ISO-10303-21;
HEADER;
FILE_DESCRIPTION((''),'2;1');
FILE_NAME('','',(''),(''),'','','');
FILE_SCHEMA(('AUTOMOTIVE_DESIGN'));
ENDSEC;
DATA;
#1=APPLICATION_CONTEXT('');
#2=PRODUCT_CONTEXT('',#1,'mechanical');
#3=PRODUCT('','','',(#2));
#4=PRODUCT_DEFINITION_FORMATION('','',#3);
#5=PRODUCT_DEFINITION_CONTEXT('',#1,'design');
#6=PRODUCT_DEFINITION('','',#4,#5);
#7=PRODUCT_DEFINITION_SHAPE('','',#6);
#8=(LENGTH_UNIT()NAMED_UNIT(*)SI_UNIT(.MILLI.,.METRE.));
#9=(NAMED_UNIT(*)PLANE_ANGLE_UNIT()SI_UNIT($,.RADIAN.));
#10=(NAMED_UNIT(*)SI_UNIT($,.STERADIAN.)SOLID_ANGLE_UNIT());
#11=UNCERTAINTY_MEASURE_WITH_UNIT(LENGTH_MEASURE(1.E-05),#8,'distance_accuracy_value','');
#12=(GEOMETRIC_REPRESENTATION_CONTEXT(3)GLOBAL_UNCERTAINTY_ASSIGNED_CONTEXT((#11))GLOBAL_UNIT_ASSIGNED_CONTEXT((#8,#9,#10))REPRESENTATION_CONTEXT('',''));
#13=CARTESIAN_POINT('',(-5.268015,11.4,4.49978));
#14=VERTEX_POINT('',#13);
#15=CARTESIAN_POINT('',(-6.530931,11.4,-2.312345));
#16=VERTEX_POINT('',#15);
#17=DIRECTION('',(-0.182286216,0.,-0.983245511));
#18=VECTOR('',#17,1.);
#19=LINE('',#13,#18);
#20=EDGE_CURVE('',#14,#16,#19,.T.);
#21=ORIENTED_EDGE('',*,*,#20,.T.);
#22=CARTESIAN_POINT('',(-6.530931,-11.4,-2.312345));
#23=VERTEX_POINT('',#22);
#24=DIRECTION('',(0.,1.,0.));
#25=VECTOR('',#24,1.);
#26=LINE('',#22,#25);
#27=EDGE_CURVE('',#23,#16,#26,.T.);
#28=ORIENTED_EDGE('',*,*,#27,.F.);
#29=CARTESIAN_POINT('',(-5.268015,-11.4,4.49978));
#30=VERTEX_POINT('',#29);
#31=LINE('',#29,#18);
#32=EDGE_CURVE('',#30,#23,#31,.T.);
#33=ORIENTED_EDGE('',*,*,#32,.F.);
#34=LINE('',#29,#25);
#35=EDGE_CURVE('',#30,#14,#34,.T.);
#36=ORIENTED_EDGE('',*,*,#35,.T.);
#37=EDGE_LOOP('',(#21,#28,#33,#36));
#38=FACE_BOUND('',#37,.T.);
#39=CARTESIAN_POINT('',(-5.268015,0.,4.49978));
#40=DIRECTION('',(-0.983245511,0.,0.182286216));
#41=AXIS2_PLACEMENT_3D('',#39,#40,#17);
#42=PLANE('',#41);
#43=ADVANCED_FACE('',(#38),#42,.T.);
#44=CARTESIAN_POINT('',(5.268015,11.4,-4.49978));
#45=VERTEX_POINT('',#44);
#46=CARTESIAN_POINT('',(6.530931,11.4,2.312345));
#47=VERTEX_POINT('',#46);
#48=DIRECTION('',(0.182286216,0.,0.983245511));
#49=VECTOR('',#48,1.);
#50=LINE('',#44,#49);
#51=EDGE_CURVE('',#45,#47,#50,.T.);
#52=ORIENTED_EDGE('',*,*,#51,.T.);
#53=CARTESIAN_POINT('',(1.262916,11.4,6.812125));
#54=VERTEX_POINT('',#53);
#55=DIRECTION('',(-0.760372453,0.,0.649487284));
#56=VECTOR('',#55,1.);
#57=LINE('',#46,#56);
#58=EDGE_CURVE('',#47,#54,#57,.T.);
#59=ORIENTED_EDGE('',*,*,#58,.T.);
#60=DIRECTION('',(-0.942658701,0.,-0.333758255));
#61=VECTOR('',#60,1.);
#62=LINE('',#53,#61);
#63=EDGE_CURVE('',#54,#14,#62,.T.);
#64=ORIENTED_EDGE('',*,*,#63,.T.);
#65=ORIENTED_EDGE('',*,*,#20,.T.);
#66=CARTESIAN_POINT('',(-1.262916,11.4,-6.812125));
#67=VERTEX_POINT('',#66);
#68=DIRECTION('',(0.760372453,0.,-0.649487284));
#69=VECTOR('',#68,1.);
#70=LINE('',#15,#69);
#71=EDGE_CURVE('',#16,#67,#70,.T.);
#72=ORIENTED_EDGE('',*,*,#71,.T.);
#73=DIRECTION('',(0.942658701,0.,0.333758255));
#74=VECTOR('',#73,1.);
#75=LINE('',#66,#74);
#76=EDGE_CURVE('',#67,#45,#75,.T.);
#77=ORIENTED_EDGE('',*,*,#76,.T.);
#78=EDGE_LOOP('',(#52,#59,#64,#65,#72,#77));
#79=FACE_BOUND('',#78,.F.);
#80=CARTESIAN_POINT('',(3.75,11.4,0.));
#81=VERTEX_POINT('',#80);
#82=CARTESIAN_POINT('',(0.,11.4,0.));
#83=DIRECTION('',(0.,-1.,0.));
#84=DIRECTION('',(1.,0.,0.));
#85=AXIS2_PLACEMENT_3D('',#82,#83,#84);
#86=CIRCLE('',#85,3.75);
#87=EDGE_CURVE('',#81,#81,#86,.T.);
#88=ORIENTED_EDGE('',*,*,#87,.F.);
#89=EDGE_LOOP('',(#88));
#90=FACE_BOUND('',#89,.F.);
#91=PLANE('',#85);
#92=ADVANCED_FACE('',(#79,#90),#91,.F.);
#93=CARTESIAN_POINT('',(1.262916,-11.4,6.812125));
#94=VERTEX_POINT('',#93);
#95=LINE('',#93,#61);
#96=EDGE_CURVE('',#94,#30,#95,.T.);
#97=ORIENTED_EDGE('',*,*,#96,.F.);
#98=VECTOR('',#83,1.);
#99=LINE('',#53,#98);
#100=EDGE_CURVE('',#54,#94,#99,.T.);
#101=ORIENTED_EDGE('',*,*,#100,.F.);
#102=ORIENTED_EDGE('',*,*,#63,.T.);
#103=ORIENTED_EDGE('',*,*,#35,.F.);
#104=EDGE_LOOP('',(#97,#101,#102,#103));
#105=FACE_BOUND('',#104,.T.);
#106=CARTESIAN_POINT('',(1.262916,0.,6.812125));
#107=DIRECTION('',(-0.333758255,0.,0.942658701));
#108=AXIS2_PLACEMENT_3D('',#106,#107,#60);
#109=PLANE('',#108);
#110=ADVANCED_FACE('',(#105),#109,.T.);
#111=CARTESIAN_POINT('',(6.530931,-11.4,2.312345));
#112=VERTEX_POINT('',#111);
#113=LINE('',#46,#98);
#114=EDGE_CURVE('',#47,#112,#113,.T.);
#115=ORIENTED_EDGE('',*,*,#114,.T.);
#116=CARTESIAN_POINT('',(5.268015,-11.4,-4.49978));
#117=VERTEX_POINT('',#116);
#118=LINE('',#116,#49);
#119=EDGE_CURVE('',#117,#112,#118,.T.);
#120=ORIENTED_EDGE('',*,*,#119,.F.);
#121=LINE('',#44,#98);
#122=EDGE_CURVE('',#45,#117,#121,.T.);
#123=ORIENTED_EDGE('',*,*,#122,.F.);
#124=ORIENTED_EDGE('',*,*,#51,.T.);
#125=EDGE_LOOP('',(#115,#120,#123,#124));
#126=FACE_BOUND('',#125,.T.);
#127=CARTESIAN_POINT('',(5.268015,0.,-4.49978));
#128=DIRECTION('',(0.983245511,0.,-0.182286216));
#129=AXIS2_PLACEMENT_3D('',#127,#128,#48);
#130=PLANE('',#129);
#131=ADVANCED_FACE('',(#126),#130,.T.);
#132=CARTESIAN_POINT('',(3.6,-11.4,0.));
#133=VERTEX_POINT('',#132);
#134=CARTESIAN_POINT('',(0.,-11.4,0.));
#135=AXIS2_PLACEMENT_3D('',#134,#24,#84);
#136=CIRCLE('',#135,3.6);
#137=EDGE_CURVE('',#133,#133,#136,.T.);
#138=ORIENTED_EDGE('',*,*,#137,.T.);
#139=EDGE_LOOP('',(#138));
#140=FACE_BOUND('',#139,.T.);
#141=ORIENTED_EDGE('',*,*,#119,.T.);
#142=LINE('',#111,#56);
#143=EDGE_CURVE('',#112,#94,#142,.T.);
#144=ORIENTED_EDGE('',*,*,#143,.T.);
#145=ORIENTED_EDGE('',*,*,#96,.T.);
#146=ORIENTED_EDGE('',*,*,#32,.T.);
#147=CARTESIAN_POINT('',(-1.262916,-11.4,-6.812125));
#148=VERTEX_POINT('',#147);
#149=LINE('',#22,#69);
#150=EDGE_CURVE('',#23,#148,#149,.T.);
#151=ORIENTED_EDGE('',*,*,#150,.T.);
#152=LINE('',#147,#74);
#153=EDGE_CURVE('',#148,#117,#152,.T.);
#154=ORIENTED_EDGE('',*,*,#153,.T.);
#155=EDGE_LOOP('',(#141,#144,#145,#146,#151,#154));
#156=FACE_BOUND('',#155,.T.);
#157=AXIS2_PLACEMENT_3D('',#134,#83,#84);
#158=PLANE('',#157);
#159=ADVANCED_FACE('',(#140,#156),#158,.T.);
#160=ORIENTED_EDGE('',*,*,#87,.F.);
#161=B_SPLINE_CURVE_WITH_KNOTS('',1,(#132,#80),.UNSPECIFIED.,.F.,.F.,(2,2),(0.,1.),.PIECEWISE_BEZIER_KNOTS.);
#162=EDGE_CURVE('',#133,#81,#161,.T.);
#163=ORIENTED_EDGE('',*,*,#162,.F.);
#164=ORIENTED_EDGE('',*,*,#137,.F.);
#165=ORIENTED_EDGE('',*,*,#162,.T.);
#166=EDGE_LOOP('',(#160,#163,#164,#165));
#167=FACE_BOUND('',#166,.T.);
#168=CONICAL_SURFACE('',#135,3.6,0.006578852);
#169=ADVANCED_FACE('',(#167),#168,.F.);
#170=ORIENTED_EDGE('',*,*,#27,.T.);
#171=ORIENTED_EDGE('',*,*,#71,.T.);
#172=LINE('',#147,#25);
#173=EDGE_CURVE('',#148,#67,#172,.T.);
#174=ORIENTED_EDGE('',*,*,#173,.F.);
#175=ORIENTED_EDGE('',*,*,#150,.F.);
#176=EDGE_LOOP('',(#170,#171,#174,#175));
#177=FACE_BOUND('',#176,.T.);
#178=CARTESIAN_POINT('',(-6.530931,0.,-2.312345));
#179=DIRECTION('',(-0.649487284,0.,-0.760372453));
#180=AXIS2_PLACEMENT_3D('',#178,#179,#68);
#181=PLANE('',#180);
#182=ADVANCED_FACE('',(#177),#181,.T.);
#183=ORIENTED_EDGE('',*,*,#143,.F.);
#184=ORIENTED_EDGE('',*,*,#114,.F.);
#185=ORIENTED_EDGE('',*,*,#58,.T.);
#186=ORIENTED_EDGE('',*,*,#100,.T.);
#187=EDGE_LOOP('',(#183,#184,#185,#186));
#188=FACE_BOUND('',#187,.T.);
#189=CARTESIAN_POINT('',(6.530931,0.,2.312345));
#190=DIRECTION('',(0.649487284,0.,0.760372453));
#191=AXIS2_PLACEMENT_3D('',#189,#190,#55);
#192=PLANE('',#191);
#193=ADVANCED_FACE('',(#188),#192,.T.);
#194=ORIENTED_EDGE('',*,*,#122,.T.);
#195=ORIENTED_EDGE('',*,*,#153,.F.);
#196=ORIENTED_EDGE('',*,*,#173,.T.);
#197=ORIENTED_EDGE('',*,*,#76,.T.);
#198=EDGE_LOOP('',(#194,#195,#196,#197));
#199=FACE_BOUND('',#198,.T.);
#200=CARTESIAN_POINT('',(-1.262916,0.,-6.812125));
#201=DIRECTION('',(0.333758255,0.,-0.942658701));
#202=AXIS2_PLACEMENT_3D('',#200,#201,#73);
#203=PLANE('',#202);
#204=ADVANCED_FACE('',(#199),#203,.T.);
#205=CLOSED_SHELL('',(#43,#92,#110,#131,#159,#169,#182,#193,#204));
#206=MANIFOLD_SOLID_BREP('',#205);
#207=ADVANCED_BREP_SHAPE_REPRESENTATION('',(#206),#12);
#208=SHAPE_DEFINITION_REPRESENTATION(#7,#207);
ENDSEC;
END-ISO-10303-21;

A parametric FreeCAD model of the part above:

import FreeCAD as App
import Part
import Sketcher
Q = App.Units.Quantity

doc = App.newDocument("Part")
body = doc.addObject("PartDesign::Body", "Body")

# Sketch on XZ plane
sketch1 = body.newObject("Sketcher::SketchObject", "Sketch")
sketch1.AttachmentSupport = (doc.getObject("XZ_Plane"), [""])
sketch1.MapMode = "FlatFace"
sketch1.addGeometry([
    Part.LineSegment(App.Vector(-1, -7, 0), App.Vector(5, -4, 0)),  # 0
    Part.LineSegment(App.Vector(5, -4, 0), App.Vector(7, 2, 0)),  # 1
    Part.LineSegment(App.Vector(7, 2, 0), App.Vector(1, 7, 0)),  # 2
    Part.LineSegment(App.Vector(1, 7, 0), App.Vector(-5, 4, 0)),  # 3
    Part.LineSegment(App.Vector(-5, 4, 0), App.Vector(-7, -2, 0)),  # 4
    Part.LineSegment(App.Vector(-7, -2, 0), App.Vector(-1, -7, 0)),  # 5
], False)
sketch1.addConstraint([
    Sketcher.Constraint("Coincident", 0, 2, 1, 1),
    Sketcher.Constraint("Coincident", 1, 2, 2, 1),
    Sketcher.Constraint("Coincident", 2, 2, 3, 1),
    Sketcher.Constraint("Coincident", 3, 2, 4, 1),
    Sketcher.Constraint("Coincident", 4, 2, 5, 1),
    Sketcher.Constraint("Coincident", 5, 2, 0, 1),
    Sketcher.Constraint("Symmetric", 0, 2, 3, 2, -1, 1),
    Sketcher.Constraint("Symmetric", 1, 2, 4, 2, -1, 1),
    Sketcher.Constraint("Symmetric", 2, 2, 5, 2, -1, 1),
    Sketcher.Constraint("Equal", 0, 1),
    Sketcher.Constraint("Equal", 1, 2),
    Sketcher.Constraint("DistanceX", 2, 2, 0, 2, Q("4.005099 mm")),
    Sketcher.Constraint("DistanceY", 0, 2, -1, 1, Q("4.49978 mm")),
    Sketcher.Constraint("DistanceX", -1, 1, 1, 2, Q("6.530931 mm")),
    Sketcher.Constraint("DistanceY", 1, 2, 2, 2, Q("4.49978 mm")),
])
pad1 = body.newObject("PartDesign::Pad", "Pad")
pad1.Profile = sketch1
pad1.Length = 22.8
pad1.Midplane = True

# Sketch on XZ plane
sketch2 = body.newObject("Sketcher::SketchObject", "Sketch001")
sketch2.AttachmentSupport = (doc.getObject("XZ_Plane"), [""])
sketch2.MapMode = "FlatFace"
sketch2.AttachmentOffset = App.Placement(App.Vector(0, 0, 11.4), App.Rotation())
sketch2.addGeometry(Part.Circle(App.Vector(0, 0, 0), App.Vector(0, 0, 1), 3.6), False)
sketch2.addConstraint([
    Sketcher.Constraint("Coincident", 0, 3, -1, 1),
    Sketcher.Constraint("Diameter", 0, Q("7.2 mm")),
])

# Sketch on XZ plane
sketch3 = body.newObject("Sketcher::SketchObject", "Sketch002")
sketch3.AttachmentSupport = (doc.getObject("XZ_Plane"), [""])
sketch3.MapMode = "FlatFace"
sketch3.AttachmentOffset = App.Placement(App.Vector(0, 0, -11.4), App.Rotation())
sketch3.addGeometry(Part.Circle(App.Vector(0, 0, 0), App.Vector(0, 0, 1), 3.8), False)
sketch3.addConstraint([
    Sketcher.Constraint("Coincident", 0, 3, -1, 1),
    Sketcher.Constraint("Diameter", 0, Q("7.5 mm")),
])

subtractiveloft = body.newObject("PartDesign::SubtractiveLoft", "SubtractiveLoft")
subtractiveloft.Profile = sketch2
subtractiveloft.Sections = [sketch3]

doc.recompute()
